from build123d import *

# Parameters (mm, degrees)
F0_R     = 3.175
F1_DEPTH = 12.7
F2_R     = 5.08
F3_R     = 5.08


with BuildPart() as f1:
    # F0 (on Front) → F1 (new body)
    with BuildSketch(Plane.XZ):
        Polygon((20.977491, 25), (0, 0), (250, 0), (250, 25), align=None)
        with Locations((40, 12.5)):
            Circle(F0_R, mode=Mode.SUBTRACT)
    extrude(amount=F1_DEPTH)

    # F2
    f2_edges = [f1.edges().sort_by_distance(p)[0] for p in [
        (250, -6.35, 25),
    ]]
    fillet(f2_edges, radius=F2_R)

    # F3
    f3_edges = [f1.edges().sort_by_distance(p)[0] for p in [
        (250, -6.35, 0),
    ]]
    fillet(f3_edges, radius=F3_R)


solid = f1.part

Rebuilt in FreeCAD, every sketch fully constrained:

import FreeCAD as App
import Part
import Sketcher

V = App.Vector
Q = App.Units.Quantity


def edges_at(feature, points):
    """Names of the edges that pass closest to the given points."""
    edges = feature.Shape.Edges
    near = lambda p: min(range(len(edges)), key=lambda i: edges[i].distToShape(Part.Vertex(*p))[0])
    return sorted({f"Edge{near(p) + 1}" for p in points})

doc = App.newDocument("Part")
body = doc.addObject("PartDesign::Body", "Body")

# Sketch on XZ plane
sketch1 = body.newObject("Sketcher::SketchObject", "Sketch")
sketch1.AttachmentSupport = (doc.getObject("XZ_Plane"), [""])
sketch1.MapMode = "FlatFace"
sketch1.addGeometry([
    Part.LineSegment(V(21, 25, 0), V(0, 0, 0)),  # 0
    Part.LineSegment(V(0, 0, 0), V(250, 0, 0)),  # 1
    Part.LineSegment(V(250, 0, 0), V(250, 25, 0)),  # 2
    Part.LineSegment(V(250, 25, 0), V(21, 25, 0)),  # 3
    Part.Circle(V(40, 12.5, 0), V(0, 0, 1), 3.2),  # 4
], False)
sketch1.addConstraint([
    Sketcher.Constraint("Coincident", 0, 2, 1, 1),
    Sketcher.Constraint("Coincident", 1, 2, 2, 1),
    Sketcher.Constraint("Coincident", 2, 2, 3, 1),
    Sketcher.Constraint("Coincident", 3, 2, 0, 1),
    Sketcher.Constraint("Horizontal", 1),
    Sketcher.Constraint("Vertical", 2),
    Sketcher.Constraint("Horizontal", 3),
    Sketcher.Constraint("Coincident", 0, 2, -1, 1),
    Sketcher.Constraint("Diameter", 4, Q("0.25 in")),
    Sketcher.Constraint("Angle", 0, Q("-130 deg")),
    Sketcher.Constraint("DistanceX", 1, 1, 1, 2, Q("250 mm")),
    Sketcher.Constraint("DistanceY", 2, 1, 2, 2, Q("25 mm")),
    Sketcher.Constraint("DistanceX", -1, 1, 4, 3, Q("40 mm")),
    Sketcher.Constraint("DistanceY", -1, 1, 4, 3, Q("12.5 mm")),
])
pad1 = body.newObject("PartDesign::Pad", "Pad")
pad1.Profile = sketch1
pad1.Length = Q("0.5 in")
doc.recompute()

fillet = body.newObject("PartDesign::Fillet", "Fillet")
fillet.Base = (pad1, edges_at(pad1, [(250, -6.35, 25)]))
fillet.Radius = Q("0.2 in")
doc.recompute()

fillet2 = body.newObject("PartDesign::Fillet", "Fillet001")
fillet2.Base = (fillet, edges_at(fillet, [(250, -6.35, 0)]))
fillet2.Radius = Q("0.2 in")

doc.recompute()
